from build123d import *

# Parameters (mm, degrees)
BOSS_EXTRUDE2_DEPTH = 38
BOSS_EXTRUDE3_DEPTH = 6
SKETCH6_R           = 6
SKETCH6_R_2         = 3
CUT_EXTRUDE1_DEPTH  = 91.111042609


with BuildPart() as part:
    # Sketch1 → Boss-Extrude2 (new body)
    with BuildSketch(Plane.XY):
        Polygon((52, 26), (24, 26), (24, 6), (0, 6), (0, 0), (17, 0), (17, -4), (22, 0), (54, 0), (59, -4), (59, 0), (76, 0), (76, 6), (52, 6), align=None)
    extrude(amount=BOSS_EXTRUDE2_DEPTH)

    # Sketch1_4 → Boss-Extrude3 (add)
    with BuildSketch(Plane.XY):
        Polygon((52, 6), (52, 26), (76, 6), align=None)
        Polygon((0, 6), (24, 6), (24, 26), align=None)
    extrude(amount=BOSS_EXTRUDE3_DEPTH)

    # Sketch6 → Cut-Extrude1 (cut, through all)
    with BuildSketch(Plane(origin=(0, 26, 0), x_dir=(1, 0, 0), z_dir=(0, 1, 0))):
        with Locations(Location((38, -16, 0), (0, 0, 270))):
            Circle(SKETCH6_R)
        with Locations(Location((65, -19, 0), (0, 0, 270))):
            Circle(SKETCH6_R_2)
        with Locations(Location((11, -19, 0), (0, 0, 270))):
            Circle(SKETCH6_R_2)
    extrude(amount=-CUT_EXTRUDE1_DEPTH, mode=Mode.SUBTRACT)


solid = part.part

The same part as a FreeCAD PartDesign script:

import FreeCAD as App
import Part
import Sketcher


def add_polygon(sketch, points):
    """Adds a closed chain of lines whose ends are joined by coincident constraints."""
    first, n = sketch.GeometryCount, len(points)
    for a, b in zip(points, points[1:] + points[:1]):
        sketch.addGeometry(Part.LineSegment(App.Vector(*a, 0), App.Vector(*b, 0)), False)
    for i in range(n):
        sketch.addConstraint(Sketcher.Constraint("Coincident", first + i, 2, first + (i + 1) % n, 1))

doc = App.newDocument("Part")
body = doc.addObject("PartDesign::Body", "Body")

# Sketch on XY plane
sketch1 = body.newObject("Sketcher::SketchObject", "Sketch")
sketch1.AttachmentSupport = (doc.getObject("XY_Plane"), [""])
sketch1.MapMode = "FlatFace"
add_polygon(sketch1, [(52, 26), (24, 26), (24, 6), (0, 6), (0, 0), (17, 0), (17, -4), (22, 0), (54, 0), (59, -4), (59, 0), (76, 0), (76, 6), (52, 6)])  # lines 0-13
sketch1.addConstraint(Sketcher.Constraint("Horizontal", 0))
sketch1.addConstraint(Sketcher.Constraint("Vertical", 1))
sketch1.addConstraint(Sketcher.Constraint("Horizontal", 2))
sketch1.addConstraint(Sketcher.Constraint("Vertical", 3))
sketch1.addConstraint(Sketcher.Constraint("Horizontal", 4))
sketch1.addConstraint(Sketcher.Constraint("Vertical", 5))
sketch1.addConstraint(Sketcher.Constraint("Horizontal", 7))
sketch1.addConstraint(Sketcher.Constraint("Vertical", 9))
sketch1.addConstraint(Sketcher.Constraint("Horizontal", 10))
sketch1.addConstraint(Sketcher.Constraint("Vertical", 11))
sketch1.addConstraint(Sketcher.Constraint("Horizontal", 12))
sketch1.addConstraint(Sketcher.Constraint("Vertical", 13))
sketch1.addConstraint(Sketcher.Constraint("Coincident", 3, 2, -1, 1))
sketch1.addConstraint(Sketcher.Constraint("PointOnObject", 6, 2, -1))
sketch1.addConstraint(Sketcher.Constraint("PointOnObject", 9, 2, -1))
sketch1.addConstraint(Sketcher.Constraint("Horizontal", 5, 2, 8, 2))
sketch1.addConstraint(Sketcher.Constraint("Horizontal", 2, 2, 11, 2))
sketch1.addConstraint(Sketcher.Constraint("Equal", 4, 10))
sketch1.addConstraint(Sketcher.Constraint("Equal", 2, 12))
sketch1.addConstraint(Sketcher.Constraint("Equal", 6, 8))
sketch1.addConstraint(Sketcher.Constraint("DistanceX", 0, 2, 0, 1, 28.0))
sketch1.addConstraint(Sketcher.Constraint("DistanceX", 2, 2, 2, 1, 24.0))
sketch1.addConstraint(Sketcher.Constraint("DistanceX", 4, 1, 4, 2, 17.0))
sketch1.addConstraint(Sketcher.Constraint("DistanceX", 7, 1, 7, 2, 32.0))
sketch1.addConstraint(Sketcher.Constraint("DistanceY", 1, 2, 1, 1, 20.0))
sketch1.addConstraint(Sketcher.Constraint("DistanceY", 3, 2, 3, 1, 6.0))
sketch1.addConstraint(Sketcher.Constraint("DistanceY", 5, 2, 5, 1, 4.0))
pad1 = body.newObject("PartDesign::Pad", "Pad")
pad1.Profile = sketch1
pad1.Length = 38

# Sketch on XY plane
sketch2 = body.newObject("Sketcher::SketchObject", "Sketch001")
sketch2.AttachmentSupport = (doc.getObject("XY_Plane"), [""])
sketch2.MapMode = "FlatFace"
add_polygon(sketch2, [(52, 26), (52, 6), (76, 6)])  # lines 0-2
add_polygon(sketch2, [(0, 6), (24, 6), (24, 26)])  # lines 3-5
sketch2.addConstraint(Sketcher.Constraint("Vertical", 0))
sketch2.addConstraint(Sketcher.Constraint("Horizontal", 1))
sketch2.addConstraint(Sketcher.Constraint("Horizontal", 3))
sketch2.addConstraint(Sketcher.Constraint("Vertical", 4))
sketch2.addConstraint(Sketcher.Constraint("PointOnObject", 5, 2, -2))
sketch2.addConstraint(Sketcher.Constraint("Horizontal", 1, 2, 3, 2))
sketch2.addConstraint(Sketcher.Constraint("Horizontal", 2, 2, 4, 2))
sketch2.addConstraint(Sketcher.Constraint("Equal", 1, 3))
sketch2.addConstraint(Sketcher.Constraint("DistanceX", 1, 1, 1, 2, 24.0))
sketch2.addConstraint(Sketcher.Constraint("DistanceY", 0, 2, 0, 1, 20.0))
sketch2.addConstraint(Sketcher.Constraint("DistanceX", -1, 1, 0, 2, 52.0))
sketch2.addConstraint(Sketcher.Constraint("DistanceY", -1, 1, 0, 2, 6.0))
pad2 = body.newObject("PartDesign::Pad", "Pad001")
pad2.Profile = sketch2
pad2.Length = 6

# Sketch on XZ plane
sketch3 = body.newObject("Sketcher::SketchObject", "Sketch002")
sketch3.AttachmentSupport = (doc.getObject("XZ_Plane"), [""])
sketch3.MapMode = "FlatFace"
sketch3.AttachmentOffset = App.Placement(App.Vector(0, 0, -26), App.Rotation())
sketch3.addGeometry(Part.Circle(App.Vector(38, 16, 0), App.Vector(0, 0, 1), 6), False)
sketch3.addGeometry(Part.Circle(App.Vector(65, 19, 0), App.Vector(0, 0, 1), 3), False)
sketch3.addGeometry(Part.Circle(App.Vector(11, 19, 0), App.Vector(0, 0, 1), 3), False)
sketch3.addConstraint(Sketcher.Constraint("Equal", 1, 2))
sketch3.addConstraint(Sketcher.Constraint("Horizontal", 1, 3, 2, 3))
sketch3.addConstraint(Sketcher.Constraint("Diameter", 0, 12.0))
sketch3.addConstraint(Sketcher.Constraint("Diameter", 1, 6.0))
sketch3.addConstraint(Sketcher.Constraint("DistanceX", -1, 1, 0, 3, 38.0))
sketch3.addConstraint(Sketcher.Constraint("DistanceY", -1, 1, 0, 3, 16.0))
sketch3.addConstraint(Sketcher.Constraint("DistanceX", -1, 1, 1, 3, 65.0))
sketch3.addConstraint(Sketcher.Constraint("DistanceY", -1, 1, 1, 3, 19.0))
sketch3.addConstraint(Sketcher.Constraint("DistanceX", -1, 1, 2, 3, 11.0))
pocket1 = body.newObject("PartDesign::Pocket", "Pocket")
pocket1.Profile = sketch3
pocket1.Type = "ThroughAll"
pocket1.Reversed = True

doc.recompute()
